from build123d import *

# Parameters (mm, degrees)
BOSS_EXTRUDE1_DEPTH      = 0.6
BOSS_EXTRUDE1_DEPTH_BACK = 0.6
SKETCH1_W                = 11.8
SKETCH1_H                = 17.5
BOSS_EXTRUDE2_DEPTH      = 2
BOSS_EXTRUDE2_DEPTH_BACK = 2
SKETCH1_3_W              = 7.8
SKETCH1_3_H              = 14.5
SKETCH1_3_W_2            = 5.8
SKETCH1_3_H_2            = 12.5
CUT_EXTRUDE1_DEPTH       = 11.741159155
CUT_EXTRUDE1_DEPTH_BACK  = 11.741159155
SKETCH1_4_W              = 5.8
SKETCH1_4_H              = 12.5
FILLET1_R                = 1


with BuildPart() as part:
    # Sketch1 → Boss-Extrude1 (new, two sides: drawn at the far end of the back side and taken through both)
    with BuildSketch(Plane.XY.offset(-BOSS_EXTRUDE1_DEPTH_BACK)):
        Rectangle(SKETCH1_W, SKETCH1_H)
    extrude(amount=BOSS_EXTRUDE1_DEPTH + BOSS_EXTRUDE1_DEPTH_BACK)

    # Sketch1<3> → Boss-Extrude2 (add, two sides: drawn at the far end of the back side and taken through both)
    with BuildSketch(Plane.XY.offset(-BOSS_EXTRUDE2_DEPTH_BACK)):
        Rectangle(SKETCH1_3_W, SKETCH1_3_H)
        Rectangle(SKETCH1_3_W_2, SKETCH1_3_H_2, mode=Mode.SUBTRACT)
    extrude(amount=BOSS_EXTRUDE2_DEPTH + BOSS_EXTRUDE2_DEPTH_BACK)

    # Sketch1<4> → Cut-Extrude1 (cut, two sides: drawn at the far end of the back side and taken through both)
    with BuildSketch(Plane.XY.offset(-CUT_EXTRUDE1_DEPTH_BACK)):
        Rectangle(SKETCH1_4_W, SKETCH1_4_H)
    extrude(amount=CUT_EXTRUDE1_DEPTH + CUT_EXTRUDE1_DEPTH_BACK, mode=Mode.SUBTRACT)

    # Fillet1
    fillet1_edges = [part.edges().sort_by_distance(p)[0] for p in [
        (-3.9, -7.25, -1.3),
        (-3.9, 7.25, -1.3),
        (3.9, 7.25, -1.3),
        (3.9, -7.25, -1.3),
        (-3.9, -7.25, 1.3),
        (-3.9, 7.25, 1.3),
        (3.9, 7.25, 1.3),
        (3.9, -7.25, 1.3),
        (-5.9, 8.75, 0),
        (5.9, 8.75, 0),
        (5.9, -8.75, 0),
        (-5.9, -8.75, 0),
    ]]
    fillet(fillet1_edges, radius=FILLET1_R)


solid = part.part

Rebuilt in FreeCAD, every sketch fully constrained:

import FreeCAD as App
import Part
import Sketcher

V = App.Vector


def edges_at(feature, points):
    """Names of the edges that pass closest to the given points."""
    edges = feature.Shape.Edges
    near = lambda p: min(range(len(edges)), key=lambda i: edges[i].distToShape(Part.Vertex(*p))[0])
    return sorted({f"Edge{near(p) + 1}" for p in points})


def add_polygon(sketch, points):
    """Adds a closed chain of lines whose ends are joined by coincident constraints."""
    first, n = sketch.GeometryCount, len(points)
    for a, b in zip(points, points[1:] + points[:1]):
        sketch.addGeometry(Part.LineSegment(App.Vector(*a, 0), App.Vector(*b, 0)), False)
    for i in range(n):
        sketch.addConstraint(Sketcher.Constraint("Coincident", first + i, 2, first + (i + 1) % n, 1))

doc = App.newDocument("Part")
body = doc.addObject("PartDesign::Body", "Body")

sketch1 = body.newObject("Sketcher::SketchObject", "Sketch")
sketch1.AttachmentSupport = (doc.getObject("XY_Plane"), [""])
sketch1.MapMode = "FlatFace"
add_polygon(sketch1, [(-5.9, 8.75), (-5.9, -8.75), (5.9, -8.75), (5.9, 8.75)])
sketch1.addConstraint([
    Sketcher.Constraint("Vertical", 0),
    Sketcher.Constraint("Horizontal", 1),
    Sketcher.Constraint("Vertical", 2),
    Sketcher.Constraint("Horizontal", 3),
    Sketcher.Constraint("Symmetric", 0, 2, 2, 2, -1, 1),
    Sketcher.Constraint("DistanceX", 1, 1, 1, 2, 11.8),
    Sketcher.Constraint("DistanceY", 0, 2, 0, 1, 17.5),
])
pad1 = body.newObject("PartDesign::Pad", "Pad")
pad1.Profile = sketch1
pad1.Type = "TwoLengths"
pad1.Length = 0.6
pad1.Length2 = 0.6

sketch2 = body.newObject("Sketcher::SketchObject", "Sketch001")
sketch2.AttachmentSupport = (doc.getObject("XY_Plane"), [""])
sketch2.MapMode = "FlatFace"
add_polygon(sketch2, [(-3.9, 7.25), (-3.9, -7.25), (3.9, -7.25), (3.9, 7.25)])
add_polygon(sketch2, [(2.9, -6.25), (-2.9, -6.25), (-2.9, 6.25), (2.9, 6.25)])
sketch2.addConstraint([
    Sketcher.Constraint("Vertical", 0),
    Sketcher.Constraint("Horizontal", 1),
    Sketcher.Constraint("Vertical", 2),
    Sketcher.Constraint("Horizontal", 3),
    Sketcher.Constraint("Horizontal", 4),
    Sketcher.Constraint("Vertical", 5),
    Sketcher.Constraint("Horizontal", 6),
    Sketcher.Constraint("Vertical", 7),
    Sketcher.Constraint("Symmetric", 0, 2, 2, 2, -1, 1),
    Sketcher.Constraint("Symmetric", 4, 2, 6, 2, -1, 1),
    Sketcher.Constraint("DistanceX", 1, 1, 1, 2, 7.8),
    Sketcher.Constraint("DistanceX", 4, 2, 4, 1, 5.8),
    Sketcher.Constraint("DistanceY", 0, 2, 0, 1, 14.5),
    Sketcher.Constraint("DistanceY", 5, 1, 5, 2, 12.5),
])
pad2 = body.newObject("PartDesign::Pad", "Pad001")
pad2.Profile = sketch2
pad2.Type = "TwoLengths"
pad2.Length = 2
pad2.Length2 = 2

sketch3 = body.newObject("Sketcher::SketchObject", "Sketch002")
sketch3.AttachmentSupport = (doc.getObject("XY_Plane"), [""])
sketch3.MapMode = "FlatFace"
add_polygon(sketch3, [(-2.9, 6.25), (-2.9, -6.25), (2.9, -6.25), (2.9, 6.25)])
sketch3.addConstraint([
    Sketcher.Constraint("Vertical", 0),
    Sketcher.Constraint("Horizontal", 1),
    Sketcher.Constraint("Vertical", 2),
    Sketcher.Constraint("Horizontal", 3),
    Sketcher.Constraint("Symmetric", 0, 2, 2, 2, -1, 1),
    Sketcher.Constraint("DistanceX", 1, 1, 1, 2, 5.8),
    Sketcher.Constraint("DistanceY", 0, 2, 0, 1, 12.5),
])
pocket1 = body.newObject("PartDesign::Pocket", "Pocket")
pocket1.Profile = sketch3
pocket1.Type = "ThroughAll"
pocket1.Midplane = True
doc.recompute()

fillet = body.newObject("PartDesign::Fillet", "Fillet")
fillet.Base = (pocket1, edges_at(pocket1, [
    (-3.9, -7.25, -1.3),
    (-3.9, 7.25, -1.3),
    (3.9, 7.25, -1.3),
    (3.9, -7.25, -1.3),
    (-3.9, -7.25, 1.3),
    (-3.9, 7.25, 1.3),
    (3.9, 7.25, 1.3),
    (3.9, -7.25, 1.3),
    (-5.9, 8.75, 0),
    (5.9, 8.75, 0),
    (5.9, -8.75, 0),
    (-5.9, -8.75, 0),
]))
fillet.Radius = 1

doc.recompute()
